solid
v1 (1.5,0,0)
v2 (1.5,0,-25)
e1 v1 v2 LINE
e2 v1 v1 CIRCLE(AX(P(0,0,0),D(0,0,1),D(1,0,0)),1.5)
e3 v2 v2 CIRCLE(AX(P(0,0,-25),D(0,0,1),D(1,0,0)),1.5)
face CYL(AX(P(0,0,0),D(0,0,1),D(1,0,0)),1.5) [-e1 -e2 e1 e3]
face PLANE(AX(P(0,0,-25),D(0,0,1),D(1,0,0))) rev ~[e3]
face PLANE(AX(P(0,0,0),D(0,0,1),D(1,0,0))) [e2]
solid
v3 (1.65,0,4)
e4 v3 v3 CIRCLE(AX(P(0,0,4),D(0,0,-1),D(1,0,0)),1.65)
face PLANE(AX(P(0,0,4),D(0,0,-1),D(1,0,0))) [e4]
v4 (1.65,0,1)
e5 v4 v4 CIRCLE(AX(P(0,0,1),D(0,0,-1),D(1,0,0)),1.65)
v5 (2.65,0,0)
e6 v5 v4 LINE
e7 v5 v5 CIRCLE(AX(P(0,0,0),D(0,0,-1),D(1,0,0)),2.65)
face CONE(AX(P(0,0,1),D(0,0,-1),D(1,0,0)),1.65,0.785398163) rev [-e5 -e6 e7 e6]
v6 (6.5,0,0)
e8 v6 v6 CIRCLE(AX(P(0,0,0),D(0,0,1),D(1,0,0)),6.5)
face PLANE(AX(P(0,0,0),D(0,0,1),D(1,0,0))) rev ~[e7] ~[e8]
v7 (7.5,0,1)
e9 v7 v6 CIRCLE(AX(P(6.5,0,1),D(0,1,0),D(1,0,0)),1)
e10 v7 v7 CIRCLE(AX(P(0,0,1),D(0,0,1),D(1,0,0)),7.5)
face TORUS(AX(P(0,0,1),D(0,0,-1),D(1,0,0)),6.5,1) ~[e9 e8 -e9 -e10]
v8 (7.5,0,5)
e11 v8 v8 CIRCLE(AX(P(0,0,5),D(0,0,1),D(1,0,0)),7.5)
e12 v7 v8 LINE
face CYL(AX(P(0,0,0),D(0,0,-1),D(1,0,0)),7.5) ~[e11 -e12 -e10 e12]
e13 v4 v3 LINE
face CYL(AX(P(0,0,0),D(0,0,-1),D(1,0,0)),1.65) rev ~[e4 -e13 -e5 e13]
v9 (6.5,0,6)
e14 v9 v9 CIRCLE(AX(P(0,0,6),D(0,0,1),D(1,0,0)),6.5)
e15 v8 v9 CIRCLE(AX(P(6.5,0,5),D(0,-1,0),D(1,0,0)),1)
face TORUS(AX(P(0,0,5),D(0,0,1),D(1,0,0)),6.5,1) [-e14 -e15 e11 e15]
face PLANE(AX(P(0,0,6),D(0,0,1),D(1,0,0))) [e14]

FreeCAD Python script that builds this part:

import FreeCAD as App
import Part
import Sketcher

V = App.Vector


def edges_at(feature, points):
    """Names of the edges that pass closest to the given points."""
    edges = feature.Shape.Edges
    near = lambda p: min(range(len(edges)), key=lambda i: edges[i].distToShape(Part.Vertex(*p))[0])
    return sorted({f"Edge{near(p) + 1}" for p in points})

doc = App.newDocument("Part")
body = doc.addObject("PartDesign::Body", "Body")

sketch1 = body.newObject("Sketcher::SketchObject", "Sketch")
sketch1.AttachmentSupport = (doc.getObject("XY_Plane"), [""])
sketch1.MapMode = "FlatFace"
sketch1.addGeometry(Part.Circle(V(0, 0, 0), V(0, 0, 1), 8), False)
sketch1.addConstraint(Sketcher.Constraint("Coincident", 0, 3, -1, 1))
sketch1.addConstraint(Sketcher.Constraint("Diameter", 0, 15.0))
pad1 = body.newObject("PartDesign::Pad", "Pad")
pad1.Profile = sketch1
pad1.Length = 6
doc.recompute()

fillet = body.newObject("PartDesign::Fillet", "Fillet")
fillet.Base = (pad1, edges_at(pad1, [(-7.5, 0, 6), (-7.5, 0, 0)]))
fillet.Radius = 1

sketch2 = body.newObject("Sketcher::SketchObject", "Sketch001")
sketch2.AttachmentSupport = (doc.getObject("XY_Plane"), [""])
sketch2.MapMode = "FlatFace"
sketch2.addGeometry(Part.Circle(V(0, 0, 0), V(0, 0, 1), 1.6), False)
sketch2.addConstraint(Sketcher.Constraint("Coincident", 0, 3, -1, 1))
sketch2.addConstraint(Sketcher.Constraint("Diameter", 0, 3.3))
pocket1 = body.newObject("PartDesign::Pocket", "Pocket")
pocket1.Profile = sketch2
pocket1.Length = 4
pocket1.Reversed = True
doc.recompute()

chamfer = body.newObject("PartDesign::Chamfer", "Chamfer")
chamfer.Base = (pocket1, edges_at(pocket1, [(-1.65, 0, 0)]))
chamfer.Size = 1
body2 = doc.addObject("PartDesign::Body", "Body001")

sketch3 = body2.newObject("Sketcher::SketchObject", "Sketch002")
sketch3.AttachmentSupport = (doc.getObject("XY_Plane001"), [""])
sketch3.MapMode = "FlatFace"
sketch3.addGeometry(Part.Circle(V(0, 0, 0), V(0, 0, 1), 1.5), False)
sketch3.addConstraint(Sketcher.Constraint("Coincident", 0, 3, -1, 1))
sketch3.addConstraint(Sketcher.Constraint("Diameter", 0, 3.0))
pad2 = body2.newObject("PartDesign::Pad", "Pad001")
pad2.Profile = sketch3
pad2.Length = 25
pad2.Reversed = True

doc.recompute()
